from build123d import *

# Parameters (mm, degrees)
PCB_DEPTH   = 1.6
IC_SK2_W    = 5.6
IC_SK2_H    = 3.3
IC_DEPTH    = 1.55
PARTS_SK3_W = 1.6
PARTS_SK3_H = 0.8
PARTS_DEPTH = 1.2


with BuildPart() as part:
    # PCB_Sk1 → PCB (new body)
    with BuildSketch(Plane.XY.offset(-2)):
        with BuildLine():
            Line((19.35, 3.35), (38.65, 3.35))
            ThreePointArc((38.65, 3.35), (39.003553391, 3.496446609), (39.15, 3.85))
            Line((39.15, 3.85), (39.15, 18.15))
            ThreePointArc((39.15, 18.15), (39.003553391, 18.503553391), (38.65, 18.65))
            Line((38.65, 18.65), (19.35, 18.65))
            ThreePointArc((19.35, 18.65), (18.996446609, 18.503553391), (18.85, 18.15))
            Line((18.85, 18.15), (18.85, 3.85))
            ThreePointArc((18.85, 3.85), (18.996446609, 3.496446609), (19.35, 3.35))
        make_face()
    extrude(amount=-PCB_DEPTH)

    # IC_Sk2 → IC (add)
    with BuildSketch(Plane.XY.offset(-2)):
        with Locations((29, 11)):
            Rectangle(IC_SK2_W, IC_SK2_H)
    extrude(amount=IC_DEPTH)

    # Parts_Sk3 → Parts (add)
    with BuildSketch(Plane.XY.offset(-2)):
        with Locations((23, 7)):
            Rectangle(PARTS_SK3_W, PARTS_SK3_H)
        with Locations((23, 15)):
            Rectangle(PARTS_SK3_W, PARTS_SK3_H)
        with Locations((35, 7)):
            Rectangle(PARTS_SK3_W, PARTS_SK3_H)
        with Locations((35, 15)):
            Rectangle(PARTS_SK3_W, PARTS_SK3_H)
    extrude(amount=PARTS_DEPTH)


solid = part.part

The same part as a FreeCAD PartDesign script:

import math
import FreeCAD as App
import Part
import Sketcher

doc = App.newDocument("Part")
body = doc.addObject("PartDesign::Body", "Body")

# Sketch on XY plane
sketch1 = body.newObject("Sketcher::SketchObject", "Sketch")
sketch1.AttachmentSupport = (doc.getObject("XY_Plane"), [""])
sketch1.MapMode = "FlatFace"
sketch1.AttachmentOffset = App.Placement(App.Vector(0, 0, -2), App.Rotation())
sketch1.addGeometry([
    Part.LineSegment(App.Vector(19.35, 3.35, 0), App.Vector(38.65, 3.35, 0)),  # 0
    Part.ArcOfCircle(Part.Circle(App.Vector(38.65, 3.85, 0), App.Vector(0, 0, 1), 0.5), math.radians(-90), math.radians(0)),  # 1
    Part.LineSegment(App.Vector(39.15, 3.85, 0), App.Vector(39.15, 18.15, 0)),  # 2
    Part.ArcOfCircle(Part.Circle(App.Vector(38.65, 18.15, 0), App.Vector(0, 0, 1), 0.5), math.radians(0), math.radians(90)),  # 3
    Part.LineSegment(App.Vector(38.65, 18.65, 0), App.Vector(19.35, 18.65, 0)),  # 4
    Part.ArcOfCircle(Part.Circle(App.Vector(19.35, 18.15, 0), App.Vector(0, 0, 1), 0.5), math.radians(90), math.radians(180)),  # 5
    Part.LineSegment(App.Vector(18.85, 18.15, 0), App.Vector(18.85, 3.85, 0)),  # 6
    Part.ArcOfCircle(Part.Circle(App.Vector(19.35, 3.85, 0), App.Vector(0, 0, 1), 0.5), math.radians(180), math.radians(270)),  # 7
], False)
sketch1.addConstraint([
    Sketcher.Constraint("Tangent", 0, 2, 1, 1),
    Sketcher.Constraint("Tangent", 1, 2, 2, 1),
    Sketcher.Constraint("Tangent", 2, 2, 3, 1),
    Sketcher.Constraint("Tangent", 3, 2, 4, 1),
    Sketcher.Constraint("Tangent", 4, 2, 5, 1),
    Sketcher.Constraint("Tangent", 5, 2, 6, 1),
    Sketcher.Constraint("Tangent", 6, 2, 7, 1),
    Sketcher.Constraint("Tangent", 7, 2, 0, 1),
    Sketcher.Constraint("Horizontal", 0),
    Sketcher.Constraint("Vertical", 2),
    Sketcher.Constraint("Horizontal", 4),
    Sketcher.Constraint("Vertical", 6),
    Sketcher.Constraint("Equal", 1, 3),
    Sketcher.Constraint("Equal", 3, 5),
    Sketcher.Constraint("Equal", 5, 7),
    Sketcher.Constraint("Radius", 1, 0.5),
    Sketcher.Constraint("DistanceX", 0, 1, 0, 2, 19.3),
    Sketcher.Constraint("DistanceY", 2, 1, 2, 2, 14.3),
    Sketcher.Constraint("DistanceX", -1, 1, 1, 3, 38.65),
    Sketcher.Constraint("DistanceY", -1, 1, 1, 3, 3.85),
])
pad1 = body.newObject("PartDesign::Pad", "Pad")
pad1.Profile = sketch1
pad1.Length = 1.6
pad1.Reversed = True

# Sketch on XY plane
sketch2 = body.newObject("Sketcher::SketchObject", "Sketch001")
sketch2.AttachmentSupport = (doc.getObject("XY_Plane"), [""])
sketch2.MapMode = "FlatFace"
sketch2.AttachmentOffset = App.Placement(App.Vector(0, 0, -2), App.Rotation())
sketch2.addGeometry([
    Part.LineSegment(App.Vector(26.2, 12.7, 0), App.Vector(26.2, 9.3, 0)),
    Part.LineSegment(App.Vector(26.2, 9.3, 0), App.Vector(31.8, 9.3, 0)),
    Part.LineSegment(App.Vector(31.8, 9.3, 0), App.Vector(31.8, 12.7, 0)),
    Part.LineSegment(App.Vector(31.8, 12.7, 0), App.Vector(26.2, 12.7, 0)),
], False)
sketch2.addConstraint([
    Sketcher.Constraint("Coincident", 0, 2, 1, 1),
    Sketcher.Constraint("Coincident", 1, 2, 2, 1),
    Sketcher.Constraint("Coincident", 2, 2, 3, 1),
    Sketcher.Constraint("Coincident", 3, 2, 0, 1),
    Sketcher.Constraint("Vertical", 0),
    Sketcher.Constraint("Horizontal", 1),
    Sketcher.Constraint("Vertical", 2),
    Sketcher.Constraint("Horizontal", 3),
    Sketcher.Constraint("DistanceX", 1, 1, 1, 2, 5.6),
    Sketcher.Constraint("DistanceY", 0, 2, 0, 1, 3.3),
    Sketcher.Constraint("DistanceX", -1, 1, 0, 2, 26.2),
    Sketcher.Constraint("DistanceY", -1, 1, 0, 2, 9.35),
])
pad2 = body.newObject("PartDesign::Pad", "Pad001")
pad2.Profile = sketch2
pad2.Length = 1.55

# Sketch on XY plane
sketch3 = body.newObject("Sketcher::SketchObject", "Sketch002")
sketch3.AttachmentSupport = (doc.getObject("XY_Plane"), [""])
sketch3.MapMode = "FlatFace"
sketch3.AttachmentOffset = App.Placement(App.Vector(0, 0, -2), App.Rotation())
sketch3.addGeometry([
    Part.LineSegment(App.Vector(22.2, 7.4, 0), App.Vector(22.2, 6.6, 0)),  # 0
    Part.LineSegment(App.Vector(22.2, 6.6, 0), App.Vector(23.8, 6.6, 0)),  # 1
    Part.LineSegment(App.Vector(23.8, 6.6, 0), App.Vector(23.8, 7.4, 0)),  # 2
    Part.LineSegment(App.Vector(23.8, 7.4, 0), App.Vector(22.2, 7.4, 0)),  # 3
    Part.LineSegment(App.Vector(22.2, 15.4, 0), App.Vector(22.2, 14.6, 0)),  # 4
    Part.LineSegment(App.Vector(22.2, 14.6, 0), App.Vector(23.8, 14.6, 0)),  # 5
    Part.LineSegment(App.Vector(23.8, 14.6, 0), App.Vector(23.8, 15.4, 0)),  # 6
    Part.LineSegment(App.Vector(23.8, 15.4, 0), App.Vector(22.2, 15.4, 0)),  # 7
    Part.LineSegment(App.Vector(34.2, 7.4, 0), App.Vector(34.2, 6.6, 0)),  # 8
    Part.LineSegment(App.Vector(34.2, 6.6, 0), App.Vector(35.8, 6.6, 0)),  # 9
    Part.LineSegment(App.Vector(35.8, 6.6, 0), App.Vector(35.8, 7.4, 0)),  # 10
    Part.LineSegment(App.Vector(35.8, 7.4, 0), App.Vector(34.2, 7.4, 0)),  # 11
    Part.LineSegment(App.Vector(34.2, 15.4, 0), App.Vector(34.2, 14.6, 0)),  # 12
    Part.LineSegment(App.Vector(34.2, 14.6, 0), App.Vector(35.8, 14.6, 0)),  # 13
    Part.LineSegment(App.Vector(35.8, 14.6, 0), App.Vector(35.8, 15.4, 0)),  # 14
    Part.LineSegment(App.Vector(35.8, 15.4, 0), App.Vector(34.2, 15.4, 0)),  # 15
], False)
sketch3.addConstraint([
    Sketcher.Constraint("Coincident", 0, 2, 1, 1),
    Sketcher.Constraint("Coincident", 1, 2, 2, 1),
    Sketcher.Constraint("Coincident", 2, 2, 3, 1),
    Sketcher.Constraint("Coincident", 3, 2, 0, 1),
    Sketcher.Constraint("Coincident", 4, 2, 5, 1),
    Sketcher.Constraint("Coincident", 5, 2, 6, 1),
    Sketcher.Constraint("Coincident", 6, 2, 7, 1),
    Sketcher.Constraint("Coincident", 7, 2, 4, 1),
    Sketcher.Constraint("Coincident", 8, 2, 9, 1),
    Sketcher.Constraint("Coincident", 9, 2, 10, 1),
    Sketcher.Constraint("Coincident", 10, 2, 11, 1),
    Sketcher.Constraint("Coincident", 11, 2, 8, 1),
    Sketcher.Constraint("Coincident", 12, 2, 13, 1),
    Sketcher.Constraint("Coincident", 13, 2, 14, 1),
    Sketcher.Constraint("Coincident", 14, 2, 15, 1),
    Sketcher.Constraint("Coincident", 15, 2, 12, 1),
    Sketcher.Constraint("Vertical", 0),
    Sketcher.Constraint("Horizontal", 1),
    Sketcher.Constraint("Vertical", 2),
    Sketcher.Constraint("Horizontal", 3),
    Sketcher.Constraint("Vertical", 4),
    Sketcher.Constraint("Horizontal", 5),
    Sketcher.Constraint("Vertical", 6),
    Sketcher.Constraint("Horizontal", 7),
    Sketcher.Constraint("Vertical", 8),
    Sketcher.Constraint("Horizontal", 9),
    Sketcher.Constraint("Vertical", 10),
    Sketcher.Constraint("Horizontal", 11),
    Sketcher.Constraint("Vertical", 12),
    Sketcher.Constraint("Horizontal", 13),
    Sketcher.Constraint("Vertical", 14),
    Sketcher.Constraint("Horizontal", 15),
    Sketcher.Constraint("Horizontal", 1, 2, 8, 2),
    Sketcher.Constraint("Horizontal", 3, 2, 10, 2),
    Sketcher.Constraint("Horizontal", 5, 2, 12, 2),
    Sketcher.Constraint("Horizontal", 7, 2, 14, 2),
    Sketcher.Constraint("Vertical", 3, 2, 4, 2),
    Sketcher.Constraint("Vertical", 2, 2, 5, 2),
    Sketcher.Constraint("Vertical", 11, 2, 12, 2),
    Sketcher.Constraint("Vertical", 10, 2, 13, 2),
    Sketcher.Constraint("Equal", 7, 9),
    Sketcher.Constraint("Equal", 2, 4),
    Sketcher.Constraint("DistanceX", 1, 1, 1, 2, 1.6),
    Sketcher.Constraint("DistanceY", 0, 2, 0, 1, 0.8),
    Sketcher.Constraint("DistanceY", 0, 2, 4, 2, 8.0),
    Sketcher.Constraint("DistanceX", 0, 2, 8, 2, 12.0),
    Sketcher.Constraint("DistanceX", -1, 1, 0, 2, 22.2),
    Sketcher.Constraint("DistanceY", -1, 1, 0, 2, 6.6),
])
pad3 = body.newObject("PartDesign::Pad", "Pad002")
pad3.Profile = sketch3
pad3.Length = 1.2

doc.recompute()
